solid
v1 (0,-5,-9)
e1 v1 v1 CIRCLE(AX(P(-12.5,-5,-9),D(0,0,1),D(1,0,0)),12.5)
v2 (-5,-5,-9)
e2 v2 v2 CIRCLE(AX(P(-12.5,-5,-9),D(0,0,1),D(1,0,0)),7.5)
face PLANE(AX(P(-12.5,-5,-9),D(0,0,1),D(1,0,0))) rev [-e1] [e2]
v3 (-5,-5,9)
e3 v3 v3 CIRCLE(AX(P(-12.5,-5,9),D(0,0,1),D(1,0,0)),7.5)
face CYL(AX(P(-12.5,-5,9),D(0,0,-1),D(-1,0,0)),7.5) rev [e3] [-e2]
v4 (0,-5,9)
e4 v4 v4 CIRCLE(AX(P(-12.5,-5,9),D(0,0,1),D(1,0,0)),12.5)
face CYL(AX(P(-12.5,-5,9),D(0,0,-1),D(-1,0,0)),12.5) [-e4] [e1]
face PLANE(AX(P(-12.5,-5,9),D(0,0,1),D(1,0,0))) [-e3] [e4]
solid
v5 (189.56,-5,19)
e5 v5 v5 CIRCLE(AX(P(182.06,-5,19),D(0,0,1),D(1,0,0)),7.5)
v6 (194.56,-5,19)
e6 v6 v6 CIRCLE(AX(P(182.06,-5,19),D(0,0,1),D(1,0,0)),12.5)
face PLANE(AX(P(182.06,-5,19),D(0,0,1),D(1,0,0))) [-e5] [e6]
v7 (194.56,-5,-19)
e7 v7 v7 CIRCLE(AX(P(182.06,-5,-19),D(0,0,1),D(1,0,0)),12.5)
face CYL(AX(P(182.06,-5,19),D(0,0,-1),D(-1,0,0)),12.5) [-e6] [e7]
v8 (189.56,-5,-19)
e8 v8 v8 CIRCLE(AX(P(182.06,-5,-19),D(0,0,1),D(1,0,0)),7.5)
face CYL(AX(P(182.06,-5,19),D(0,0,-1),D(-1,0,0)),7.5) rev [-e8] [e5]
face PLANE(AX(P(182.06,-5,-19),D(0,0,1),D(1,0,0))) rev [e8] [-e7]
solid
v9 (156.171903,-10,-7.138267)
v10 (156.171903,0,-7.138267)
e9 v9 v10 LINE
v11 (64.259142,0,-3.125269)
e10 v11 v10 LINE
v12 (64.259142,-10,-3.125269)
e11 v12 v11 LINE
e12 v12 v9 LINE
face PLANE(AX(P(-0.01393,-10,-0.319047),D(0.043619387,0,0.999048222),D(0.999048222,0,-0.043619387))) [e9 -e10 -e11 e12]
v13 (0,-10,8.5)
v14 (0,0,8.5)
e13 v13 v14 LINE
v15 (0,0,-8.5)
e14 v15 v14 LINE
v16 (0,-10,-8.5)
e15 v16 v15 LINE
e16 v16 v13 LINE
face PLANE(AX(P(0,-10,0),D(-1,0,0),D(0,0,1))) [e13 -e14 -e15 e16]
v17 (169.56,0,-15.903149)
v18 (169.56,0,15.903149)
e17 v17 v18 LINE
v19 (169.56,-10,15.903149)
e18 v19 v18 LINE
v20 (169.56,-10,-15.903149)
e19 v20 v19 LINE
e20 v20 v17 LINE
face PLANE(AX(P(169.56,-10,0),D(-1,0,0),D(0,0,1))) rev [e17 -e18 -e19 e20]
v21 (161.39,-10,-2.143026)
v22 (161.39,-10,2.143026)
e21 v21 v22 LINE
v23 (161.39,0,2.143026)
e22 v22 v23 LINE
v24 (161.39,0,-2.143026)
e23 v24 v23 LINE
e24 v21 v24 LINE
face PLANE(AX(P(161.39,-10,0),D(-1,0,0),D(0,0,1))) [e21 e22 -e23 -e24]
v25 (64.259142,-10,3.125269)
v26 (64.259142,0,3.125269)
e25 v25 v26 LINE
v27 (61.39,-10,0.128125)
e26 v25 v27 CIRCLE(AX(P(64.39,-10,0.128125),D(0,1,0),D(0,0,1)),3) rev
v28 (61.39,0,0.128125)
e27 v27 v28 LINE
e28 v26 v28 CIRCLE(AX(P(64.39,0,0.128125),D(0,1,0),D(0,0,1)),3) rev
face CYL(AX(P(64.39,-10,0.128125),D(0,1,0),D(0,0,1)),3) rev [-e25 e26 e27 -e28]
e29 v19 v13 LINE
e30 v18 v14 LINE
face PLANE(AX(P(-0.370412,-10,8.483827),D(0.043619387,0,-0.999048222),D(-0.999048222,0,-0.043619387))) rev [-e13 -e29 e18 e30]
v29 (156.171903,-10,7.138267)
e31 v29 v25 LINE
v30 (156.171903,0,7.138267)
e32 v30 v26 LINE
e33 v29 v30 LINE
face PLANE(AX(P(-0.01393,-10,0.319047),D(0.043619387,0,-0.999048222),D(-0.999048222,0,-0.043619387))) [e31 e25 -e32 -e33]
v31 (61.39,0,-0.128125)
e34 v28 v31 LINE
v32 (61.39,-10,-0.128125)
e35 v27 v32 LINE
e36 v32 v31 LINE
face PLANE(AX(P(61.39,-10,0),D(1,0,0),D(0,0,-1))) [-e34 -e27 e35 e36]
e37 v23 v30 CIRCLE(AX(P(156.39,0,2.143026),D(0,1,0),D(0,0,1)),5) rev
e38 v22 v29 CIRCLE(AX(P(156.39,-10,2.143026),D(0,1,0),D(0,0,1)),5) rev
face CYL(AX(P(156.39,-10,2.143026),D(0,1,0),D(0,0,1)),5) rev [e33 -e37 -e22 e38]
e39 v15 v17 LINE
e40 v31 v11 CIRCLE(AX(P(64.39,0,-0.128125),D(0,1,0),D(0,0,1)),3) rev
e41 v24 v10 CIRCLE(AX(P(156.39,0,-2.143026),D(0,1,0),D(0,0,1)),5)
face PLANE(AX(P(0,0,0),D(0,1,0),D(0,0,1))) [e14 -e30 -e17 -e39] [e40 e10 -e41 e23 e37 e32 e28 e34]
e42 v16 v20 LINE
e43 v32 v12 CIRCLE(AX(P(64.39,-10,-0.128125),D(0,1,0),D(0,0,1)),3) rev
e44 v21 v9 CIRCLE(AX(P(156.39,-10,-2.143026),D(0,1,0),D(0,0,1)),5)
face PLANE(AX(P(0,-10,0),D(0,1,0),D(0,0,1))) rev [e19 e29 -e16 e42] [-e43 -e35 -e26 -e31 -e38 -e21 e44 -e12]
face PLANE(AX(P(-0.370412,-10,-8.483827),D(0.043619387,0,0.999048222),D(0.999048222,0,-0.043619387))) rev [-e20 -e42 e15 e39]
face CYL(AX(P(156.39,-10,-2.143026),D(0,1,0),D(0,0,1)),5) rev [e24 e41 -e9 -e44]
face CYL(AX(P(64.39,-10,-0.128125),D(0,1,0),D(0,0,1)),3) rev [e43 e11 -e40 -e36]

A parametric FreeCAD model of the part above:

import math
import FreeCAD as App
import Part
import Sketcher

V = App.Vector
Q = App.Units.Quantity


def add_polygon(sketch, points):
    """Adds a closed chain of lines whose ends are joined by coincident constraints."""
    first, n = sketch.GeometryCount, len(points)
    for a, b in zip(points, points[1:] + points[:1]):
        sketch.addGeometry(Part.LineSegment(App.Vector(*a, 0), App.Vector(*b, 0)), False)
    for i in range(n):
        sketch.addConstraint(Sketcher.Constraint("Coincident", first + i, 2, first + (i + 1) % n, 1))

doc = App.newDocument("Part")
body = doc.addObject("PartDesign::Body", "Body")

sketch1 = doc.addObject("Sketcher::SketchObject", "Sketch")
body.addObject(sketch1)
sketch1.AttachmentSupport = (doc.XZ_Plane, [""])
sketch1.MapMode = "FlatFace"
add_polygon(sketch1, [(169.56, -15.9), (0, -8.5), (0, 8.5), (169.56, 15.9)])
sketch1.addGeometry(Part.ArcOfCircle(Part.Circle(V(64.39, -0.13, 0), V(0, 0, 1), 3), math.radians(180), math.radians(268)), False)
sketch1.addGeometry(Part.LineSegment(V(64.26, -3.13, 0), V(156.17, -7.14, 0)), False)
sketch1.addGeometry(Part.ArcOfCircle(Part.Circle(V(156.39, -2.14, 0), V(0, 0, 1), 5), math.radians(-93), math.radians(0)), False)
sketch1.addGeometry(Part.LineSegment(V(161.39, -2.14, 0), V(161.39, 2.14, 0)), False)
sketch1.addGeometry(Part.ArcOfCircle(Part.Circle(V(156.39, 2.14, 0), V(0, 0, 1), 5), math.radians(0), math.radians(93)), False)
sketch1.addGeometry(Part.LineSegment(V(156.17, 7.14, 0), V(64.26, 3.13, 0)), False)
sketch1.addGeometry(Part.ArcOfCircle(Part.Circle(V(64.39, 0.13, 0), V(0, 0, 1), 3), math.radians(92), math.radians(180)), False)
sketch1.addGeometry(Part.LineSegment(V(61.39, 0.13, 0), V(61.39, -0.13, 0)), False)
sketch1.addConstraint(Sketcher.Constraint("Tangent", 4, 2, 5, 1))
sketch1.addConstraint(Sketcher.Constraint("Tangent", 5, 2, 6, 1))
sketch1.addConstraint(Sketcher.Constraint("Tangent", 6, 2, 7, 1))
sketch1.addConstraint(Sketcher.Constraint("Tangent", 7, 2, 8, 1))
sketch1.addConstraint(Sketcher.Constraint("Tangent", 8, 2, 9, 1))
sketch1.addConstraint(Sketcher.Constraint("Tangent", 9, 2, 10, 1))
sketch1.addConstraint(Sketcher.Constraint("Tangent", 10, 2, 11, 1))
sketch1.addConstraint(Sketcher.Constraint("Tangent", 11, 2, 4, 1))
sketch1.addConstraint(Sketcher.Constraint("Vertical", 1))
sketch1.addConstraint(Sketcher.Constraint("Vertical", 3))
sketch1.addConstraint(Sketcher.Constraint("Vertical", 7))
sketch1.addConstraint(Sketcher.Constraint("Vertical", 11))
sketch1.addConstraint(Sketcher.Constraint("Equal", 6, 8))
sketch1.addConstraint(Sketcher.Constraint("Equal", 4, 10))
sketch1.addConstraint(Sketcher.Constraint("Symmetric", 0, 2, 1, 2, -1, 1))
sketch1.addConstraint(Sketcher.Constraint("Symmetric", 5, 2, 8, 2, -1))
sketch1.addConstraint(Sketcher.Constraint("Parallel", 0, 5))
sketch1.addConstraint(Sketcher.Constraint("Parallel", 2, 9))
sketch1.addConstraint(Sketcher.Constraint("Radius", 4, Q("3 mm")))
sketch1.addConstraint(Sketcher.Constraint("Radius", 6, Q("5 mm")))
sketch1.addConstraint(Sketcher.Constraint("DistanceY", 1, 1, 1, 2, Q("17 mm")))
sketch1.addConstraint(Sketcher.Constraint("Angle", 0, Q("177.5 deg")))
sketch1.addConstraint(Sketcher.Constraint("DistanceX", 4, 3, 6, 3, Q("92 mm")))
sketch1.addConstraint(Sketcher.Constraint("DistanceX", -1, 1, 4, 3, Q("64.39 mm")))
sketch1.addConstraint(Sketcher.Constraint("DistanceX", -1, 1, 2, 2, Q("169.56 mm")))
sketch1.addConstraint(Sketcher.Constraint("DistanceY", 11, 2, 11, 1, Q("0.25625 mm")))
pad1 = doc.addObject("PartDesign::Pad", "Pad")
body.addObject(pad1)
pad1.Profile = sketch1
pad1.Length = 10
body2 = doc.addObject("PartDesign::Body", "Body001")

sketch2 = doc.addObject("Sketcher::SketchObject", "Sketch001")
body2.addObject(sketch2)
sketch2.AttachmentSupport = (doc.getObject("XY_Plane001"), [""])
sketch2.MapMode = "FlatFace"
sketch2.addGeometry(Part.Circle(V(-12, -5, 0), V(0, 0, 1), 12), False)
sketch2.addGeometry(Part.Circle(V(-12, -5, 0), V(0, 0, 1), 8), False)
sketch2.addConstraint(Sketcher.Constraint("Coincident", 1, 3, 0, 3))
sketch2.addConstraint(Sketcher.Constraint("Diameter", 0, Q("25 mm")))
sketch2.addConstraint(Sketcher.Constraint("Diameter", 1, Q("15 mm")))
sketch2.addConstraint(Sketcher.Constraint("DistanceY", 0, 3, -1, 1, Q("5 mm")))
sketch2.addConstraint(Sketcher.Constraint("DistanceX", 0, 3, -1, 1, Q("12.5 mm")))
pad2 = doc.addObject("PartDesign::Pad", "Pad001")
body2.addObject(pad2)
pad2.Profile = sketch2
pad2.Length = 18
pad2.Midplane = True
body3 = doc.addObject("PartDesign::Body", "Body002")

sketch3 = doc.addObject("Sketcher::SketchObject", "Sketch002")
body3.addObject(sketch3)
sketch3.AttachmentSupport = (doc.getObject("XY_Plane002"), [""])
sketch3.MapMode = "FlatFace"
sketch3.addGeometry(Part.Circle(V(182, -5, 0), V(0, 0, 1), 12), False)
sketch3.addGeometry(Part.Circle(V(182, -5, 0), V(0, 0, 1), 8), False)
sketch3.addConstraint(Sketcher.Constraint("Coincident", 1, 3, 0, 3))
sketch3.addConstraint(Sketcher.Constraint("Diameter", 0, Q("25 mm")))
sketch3.addConstraint(Sketcher.Constraint("Diameter", 1, Q("15 mm")))
sketch3.addConstraint(Sketcher.Constraint("DistanceY", 0, 3, -1, 1, Q("5 mm")))
sketch3.addConstraint(Sketcher.Constraint("DistanceX", -1, 1, 0, 3, Q("182.06 mm")))
pad3 = doc.addObject("PartDesign::Pad", "Pad002")
body3.addObject(pad3)
pad3.Profile = sketch3
pad3.Length = 38
pad3.Midplane = True

doc.recompute()
